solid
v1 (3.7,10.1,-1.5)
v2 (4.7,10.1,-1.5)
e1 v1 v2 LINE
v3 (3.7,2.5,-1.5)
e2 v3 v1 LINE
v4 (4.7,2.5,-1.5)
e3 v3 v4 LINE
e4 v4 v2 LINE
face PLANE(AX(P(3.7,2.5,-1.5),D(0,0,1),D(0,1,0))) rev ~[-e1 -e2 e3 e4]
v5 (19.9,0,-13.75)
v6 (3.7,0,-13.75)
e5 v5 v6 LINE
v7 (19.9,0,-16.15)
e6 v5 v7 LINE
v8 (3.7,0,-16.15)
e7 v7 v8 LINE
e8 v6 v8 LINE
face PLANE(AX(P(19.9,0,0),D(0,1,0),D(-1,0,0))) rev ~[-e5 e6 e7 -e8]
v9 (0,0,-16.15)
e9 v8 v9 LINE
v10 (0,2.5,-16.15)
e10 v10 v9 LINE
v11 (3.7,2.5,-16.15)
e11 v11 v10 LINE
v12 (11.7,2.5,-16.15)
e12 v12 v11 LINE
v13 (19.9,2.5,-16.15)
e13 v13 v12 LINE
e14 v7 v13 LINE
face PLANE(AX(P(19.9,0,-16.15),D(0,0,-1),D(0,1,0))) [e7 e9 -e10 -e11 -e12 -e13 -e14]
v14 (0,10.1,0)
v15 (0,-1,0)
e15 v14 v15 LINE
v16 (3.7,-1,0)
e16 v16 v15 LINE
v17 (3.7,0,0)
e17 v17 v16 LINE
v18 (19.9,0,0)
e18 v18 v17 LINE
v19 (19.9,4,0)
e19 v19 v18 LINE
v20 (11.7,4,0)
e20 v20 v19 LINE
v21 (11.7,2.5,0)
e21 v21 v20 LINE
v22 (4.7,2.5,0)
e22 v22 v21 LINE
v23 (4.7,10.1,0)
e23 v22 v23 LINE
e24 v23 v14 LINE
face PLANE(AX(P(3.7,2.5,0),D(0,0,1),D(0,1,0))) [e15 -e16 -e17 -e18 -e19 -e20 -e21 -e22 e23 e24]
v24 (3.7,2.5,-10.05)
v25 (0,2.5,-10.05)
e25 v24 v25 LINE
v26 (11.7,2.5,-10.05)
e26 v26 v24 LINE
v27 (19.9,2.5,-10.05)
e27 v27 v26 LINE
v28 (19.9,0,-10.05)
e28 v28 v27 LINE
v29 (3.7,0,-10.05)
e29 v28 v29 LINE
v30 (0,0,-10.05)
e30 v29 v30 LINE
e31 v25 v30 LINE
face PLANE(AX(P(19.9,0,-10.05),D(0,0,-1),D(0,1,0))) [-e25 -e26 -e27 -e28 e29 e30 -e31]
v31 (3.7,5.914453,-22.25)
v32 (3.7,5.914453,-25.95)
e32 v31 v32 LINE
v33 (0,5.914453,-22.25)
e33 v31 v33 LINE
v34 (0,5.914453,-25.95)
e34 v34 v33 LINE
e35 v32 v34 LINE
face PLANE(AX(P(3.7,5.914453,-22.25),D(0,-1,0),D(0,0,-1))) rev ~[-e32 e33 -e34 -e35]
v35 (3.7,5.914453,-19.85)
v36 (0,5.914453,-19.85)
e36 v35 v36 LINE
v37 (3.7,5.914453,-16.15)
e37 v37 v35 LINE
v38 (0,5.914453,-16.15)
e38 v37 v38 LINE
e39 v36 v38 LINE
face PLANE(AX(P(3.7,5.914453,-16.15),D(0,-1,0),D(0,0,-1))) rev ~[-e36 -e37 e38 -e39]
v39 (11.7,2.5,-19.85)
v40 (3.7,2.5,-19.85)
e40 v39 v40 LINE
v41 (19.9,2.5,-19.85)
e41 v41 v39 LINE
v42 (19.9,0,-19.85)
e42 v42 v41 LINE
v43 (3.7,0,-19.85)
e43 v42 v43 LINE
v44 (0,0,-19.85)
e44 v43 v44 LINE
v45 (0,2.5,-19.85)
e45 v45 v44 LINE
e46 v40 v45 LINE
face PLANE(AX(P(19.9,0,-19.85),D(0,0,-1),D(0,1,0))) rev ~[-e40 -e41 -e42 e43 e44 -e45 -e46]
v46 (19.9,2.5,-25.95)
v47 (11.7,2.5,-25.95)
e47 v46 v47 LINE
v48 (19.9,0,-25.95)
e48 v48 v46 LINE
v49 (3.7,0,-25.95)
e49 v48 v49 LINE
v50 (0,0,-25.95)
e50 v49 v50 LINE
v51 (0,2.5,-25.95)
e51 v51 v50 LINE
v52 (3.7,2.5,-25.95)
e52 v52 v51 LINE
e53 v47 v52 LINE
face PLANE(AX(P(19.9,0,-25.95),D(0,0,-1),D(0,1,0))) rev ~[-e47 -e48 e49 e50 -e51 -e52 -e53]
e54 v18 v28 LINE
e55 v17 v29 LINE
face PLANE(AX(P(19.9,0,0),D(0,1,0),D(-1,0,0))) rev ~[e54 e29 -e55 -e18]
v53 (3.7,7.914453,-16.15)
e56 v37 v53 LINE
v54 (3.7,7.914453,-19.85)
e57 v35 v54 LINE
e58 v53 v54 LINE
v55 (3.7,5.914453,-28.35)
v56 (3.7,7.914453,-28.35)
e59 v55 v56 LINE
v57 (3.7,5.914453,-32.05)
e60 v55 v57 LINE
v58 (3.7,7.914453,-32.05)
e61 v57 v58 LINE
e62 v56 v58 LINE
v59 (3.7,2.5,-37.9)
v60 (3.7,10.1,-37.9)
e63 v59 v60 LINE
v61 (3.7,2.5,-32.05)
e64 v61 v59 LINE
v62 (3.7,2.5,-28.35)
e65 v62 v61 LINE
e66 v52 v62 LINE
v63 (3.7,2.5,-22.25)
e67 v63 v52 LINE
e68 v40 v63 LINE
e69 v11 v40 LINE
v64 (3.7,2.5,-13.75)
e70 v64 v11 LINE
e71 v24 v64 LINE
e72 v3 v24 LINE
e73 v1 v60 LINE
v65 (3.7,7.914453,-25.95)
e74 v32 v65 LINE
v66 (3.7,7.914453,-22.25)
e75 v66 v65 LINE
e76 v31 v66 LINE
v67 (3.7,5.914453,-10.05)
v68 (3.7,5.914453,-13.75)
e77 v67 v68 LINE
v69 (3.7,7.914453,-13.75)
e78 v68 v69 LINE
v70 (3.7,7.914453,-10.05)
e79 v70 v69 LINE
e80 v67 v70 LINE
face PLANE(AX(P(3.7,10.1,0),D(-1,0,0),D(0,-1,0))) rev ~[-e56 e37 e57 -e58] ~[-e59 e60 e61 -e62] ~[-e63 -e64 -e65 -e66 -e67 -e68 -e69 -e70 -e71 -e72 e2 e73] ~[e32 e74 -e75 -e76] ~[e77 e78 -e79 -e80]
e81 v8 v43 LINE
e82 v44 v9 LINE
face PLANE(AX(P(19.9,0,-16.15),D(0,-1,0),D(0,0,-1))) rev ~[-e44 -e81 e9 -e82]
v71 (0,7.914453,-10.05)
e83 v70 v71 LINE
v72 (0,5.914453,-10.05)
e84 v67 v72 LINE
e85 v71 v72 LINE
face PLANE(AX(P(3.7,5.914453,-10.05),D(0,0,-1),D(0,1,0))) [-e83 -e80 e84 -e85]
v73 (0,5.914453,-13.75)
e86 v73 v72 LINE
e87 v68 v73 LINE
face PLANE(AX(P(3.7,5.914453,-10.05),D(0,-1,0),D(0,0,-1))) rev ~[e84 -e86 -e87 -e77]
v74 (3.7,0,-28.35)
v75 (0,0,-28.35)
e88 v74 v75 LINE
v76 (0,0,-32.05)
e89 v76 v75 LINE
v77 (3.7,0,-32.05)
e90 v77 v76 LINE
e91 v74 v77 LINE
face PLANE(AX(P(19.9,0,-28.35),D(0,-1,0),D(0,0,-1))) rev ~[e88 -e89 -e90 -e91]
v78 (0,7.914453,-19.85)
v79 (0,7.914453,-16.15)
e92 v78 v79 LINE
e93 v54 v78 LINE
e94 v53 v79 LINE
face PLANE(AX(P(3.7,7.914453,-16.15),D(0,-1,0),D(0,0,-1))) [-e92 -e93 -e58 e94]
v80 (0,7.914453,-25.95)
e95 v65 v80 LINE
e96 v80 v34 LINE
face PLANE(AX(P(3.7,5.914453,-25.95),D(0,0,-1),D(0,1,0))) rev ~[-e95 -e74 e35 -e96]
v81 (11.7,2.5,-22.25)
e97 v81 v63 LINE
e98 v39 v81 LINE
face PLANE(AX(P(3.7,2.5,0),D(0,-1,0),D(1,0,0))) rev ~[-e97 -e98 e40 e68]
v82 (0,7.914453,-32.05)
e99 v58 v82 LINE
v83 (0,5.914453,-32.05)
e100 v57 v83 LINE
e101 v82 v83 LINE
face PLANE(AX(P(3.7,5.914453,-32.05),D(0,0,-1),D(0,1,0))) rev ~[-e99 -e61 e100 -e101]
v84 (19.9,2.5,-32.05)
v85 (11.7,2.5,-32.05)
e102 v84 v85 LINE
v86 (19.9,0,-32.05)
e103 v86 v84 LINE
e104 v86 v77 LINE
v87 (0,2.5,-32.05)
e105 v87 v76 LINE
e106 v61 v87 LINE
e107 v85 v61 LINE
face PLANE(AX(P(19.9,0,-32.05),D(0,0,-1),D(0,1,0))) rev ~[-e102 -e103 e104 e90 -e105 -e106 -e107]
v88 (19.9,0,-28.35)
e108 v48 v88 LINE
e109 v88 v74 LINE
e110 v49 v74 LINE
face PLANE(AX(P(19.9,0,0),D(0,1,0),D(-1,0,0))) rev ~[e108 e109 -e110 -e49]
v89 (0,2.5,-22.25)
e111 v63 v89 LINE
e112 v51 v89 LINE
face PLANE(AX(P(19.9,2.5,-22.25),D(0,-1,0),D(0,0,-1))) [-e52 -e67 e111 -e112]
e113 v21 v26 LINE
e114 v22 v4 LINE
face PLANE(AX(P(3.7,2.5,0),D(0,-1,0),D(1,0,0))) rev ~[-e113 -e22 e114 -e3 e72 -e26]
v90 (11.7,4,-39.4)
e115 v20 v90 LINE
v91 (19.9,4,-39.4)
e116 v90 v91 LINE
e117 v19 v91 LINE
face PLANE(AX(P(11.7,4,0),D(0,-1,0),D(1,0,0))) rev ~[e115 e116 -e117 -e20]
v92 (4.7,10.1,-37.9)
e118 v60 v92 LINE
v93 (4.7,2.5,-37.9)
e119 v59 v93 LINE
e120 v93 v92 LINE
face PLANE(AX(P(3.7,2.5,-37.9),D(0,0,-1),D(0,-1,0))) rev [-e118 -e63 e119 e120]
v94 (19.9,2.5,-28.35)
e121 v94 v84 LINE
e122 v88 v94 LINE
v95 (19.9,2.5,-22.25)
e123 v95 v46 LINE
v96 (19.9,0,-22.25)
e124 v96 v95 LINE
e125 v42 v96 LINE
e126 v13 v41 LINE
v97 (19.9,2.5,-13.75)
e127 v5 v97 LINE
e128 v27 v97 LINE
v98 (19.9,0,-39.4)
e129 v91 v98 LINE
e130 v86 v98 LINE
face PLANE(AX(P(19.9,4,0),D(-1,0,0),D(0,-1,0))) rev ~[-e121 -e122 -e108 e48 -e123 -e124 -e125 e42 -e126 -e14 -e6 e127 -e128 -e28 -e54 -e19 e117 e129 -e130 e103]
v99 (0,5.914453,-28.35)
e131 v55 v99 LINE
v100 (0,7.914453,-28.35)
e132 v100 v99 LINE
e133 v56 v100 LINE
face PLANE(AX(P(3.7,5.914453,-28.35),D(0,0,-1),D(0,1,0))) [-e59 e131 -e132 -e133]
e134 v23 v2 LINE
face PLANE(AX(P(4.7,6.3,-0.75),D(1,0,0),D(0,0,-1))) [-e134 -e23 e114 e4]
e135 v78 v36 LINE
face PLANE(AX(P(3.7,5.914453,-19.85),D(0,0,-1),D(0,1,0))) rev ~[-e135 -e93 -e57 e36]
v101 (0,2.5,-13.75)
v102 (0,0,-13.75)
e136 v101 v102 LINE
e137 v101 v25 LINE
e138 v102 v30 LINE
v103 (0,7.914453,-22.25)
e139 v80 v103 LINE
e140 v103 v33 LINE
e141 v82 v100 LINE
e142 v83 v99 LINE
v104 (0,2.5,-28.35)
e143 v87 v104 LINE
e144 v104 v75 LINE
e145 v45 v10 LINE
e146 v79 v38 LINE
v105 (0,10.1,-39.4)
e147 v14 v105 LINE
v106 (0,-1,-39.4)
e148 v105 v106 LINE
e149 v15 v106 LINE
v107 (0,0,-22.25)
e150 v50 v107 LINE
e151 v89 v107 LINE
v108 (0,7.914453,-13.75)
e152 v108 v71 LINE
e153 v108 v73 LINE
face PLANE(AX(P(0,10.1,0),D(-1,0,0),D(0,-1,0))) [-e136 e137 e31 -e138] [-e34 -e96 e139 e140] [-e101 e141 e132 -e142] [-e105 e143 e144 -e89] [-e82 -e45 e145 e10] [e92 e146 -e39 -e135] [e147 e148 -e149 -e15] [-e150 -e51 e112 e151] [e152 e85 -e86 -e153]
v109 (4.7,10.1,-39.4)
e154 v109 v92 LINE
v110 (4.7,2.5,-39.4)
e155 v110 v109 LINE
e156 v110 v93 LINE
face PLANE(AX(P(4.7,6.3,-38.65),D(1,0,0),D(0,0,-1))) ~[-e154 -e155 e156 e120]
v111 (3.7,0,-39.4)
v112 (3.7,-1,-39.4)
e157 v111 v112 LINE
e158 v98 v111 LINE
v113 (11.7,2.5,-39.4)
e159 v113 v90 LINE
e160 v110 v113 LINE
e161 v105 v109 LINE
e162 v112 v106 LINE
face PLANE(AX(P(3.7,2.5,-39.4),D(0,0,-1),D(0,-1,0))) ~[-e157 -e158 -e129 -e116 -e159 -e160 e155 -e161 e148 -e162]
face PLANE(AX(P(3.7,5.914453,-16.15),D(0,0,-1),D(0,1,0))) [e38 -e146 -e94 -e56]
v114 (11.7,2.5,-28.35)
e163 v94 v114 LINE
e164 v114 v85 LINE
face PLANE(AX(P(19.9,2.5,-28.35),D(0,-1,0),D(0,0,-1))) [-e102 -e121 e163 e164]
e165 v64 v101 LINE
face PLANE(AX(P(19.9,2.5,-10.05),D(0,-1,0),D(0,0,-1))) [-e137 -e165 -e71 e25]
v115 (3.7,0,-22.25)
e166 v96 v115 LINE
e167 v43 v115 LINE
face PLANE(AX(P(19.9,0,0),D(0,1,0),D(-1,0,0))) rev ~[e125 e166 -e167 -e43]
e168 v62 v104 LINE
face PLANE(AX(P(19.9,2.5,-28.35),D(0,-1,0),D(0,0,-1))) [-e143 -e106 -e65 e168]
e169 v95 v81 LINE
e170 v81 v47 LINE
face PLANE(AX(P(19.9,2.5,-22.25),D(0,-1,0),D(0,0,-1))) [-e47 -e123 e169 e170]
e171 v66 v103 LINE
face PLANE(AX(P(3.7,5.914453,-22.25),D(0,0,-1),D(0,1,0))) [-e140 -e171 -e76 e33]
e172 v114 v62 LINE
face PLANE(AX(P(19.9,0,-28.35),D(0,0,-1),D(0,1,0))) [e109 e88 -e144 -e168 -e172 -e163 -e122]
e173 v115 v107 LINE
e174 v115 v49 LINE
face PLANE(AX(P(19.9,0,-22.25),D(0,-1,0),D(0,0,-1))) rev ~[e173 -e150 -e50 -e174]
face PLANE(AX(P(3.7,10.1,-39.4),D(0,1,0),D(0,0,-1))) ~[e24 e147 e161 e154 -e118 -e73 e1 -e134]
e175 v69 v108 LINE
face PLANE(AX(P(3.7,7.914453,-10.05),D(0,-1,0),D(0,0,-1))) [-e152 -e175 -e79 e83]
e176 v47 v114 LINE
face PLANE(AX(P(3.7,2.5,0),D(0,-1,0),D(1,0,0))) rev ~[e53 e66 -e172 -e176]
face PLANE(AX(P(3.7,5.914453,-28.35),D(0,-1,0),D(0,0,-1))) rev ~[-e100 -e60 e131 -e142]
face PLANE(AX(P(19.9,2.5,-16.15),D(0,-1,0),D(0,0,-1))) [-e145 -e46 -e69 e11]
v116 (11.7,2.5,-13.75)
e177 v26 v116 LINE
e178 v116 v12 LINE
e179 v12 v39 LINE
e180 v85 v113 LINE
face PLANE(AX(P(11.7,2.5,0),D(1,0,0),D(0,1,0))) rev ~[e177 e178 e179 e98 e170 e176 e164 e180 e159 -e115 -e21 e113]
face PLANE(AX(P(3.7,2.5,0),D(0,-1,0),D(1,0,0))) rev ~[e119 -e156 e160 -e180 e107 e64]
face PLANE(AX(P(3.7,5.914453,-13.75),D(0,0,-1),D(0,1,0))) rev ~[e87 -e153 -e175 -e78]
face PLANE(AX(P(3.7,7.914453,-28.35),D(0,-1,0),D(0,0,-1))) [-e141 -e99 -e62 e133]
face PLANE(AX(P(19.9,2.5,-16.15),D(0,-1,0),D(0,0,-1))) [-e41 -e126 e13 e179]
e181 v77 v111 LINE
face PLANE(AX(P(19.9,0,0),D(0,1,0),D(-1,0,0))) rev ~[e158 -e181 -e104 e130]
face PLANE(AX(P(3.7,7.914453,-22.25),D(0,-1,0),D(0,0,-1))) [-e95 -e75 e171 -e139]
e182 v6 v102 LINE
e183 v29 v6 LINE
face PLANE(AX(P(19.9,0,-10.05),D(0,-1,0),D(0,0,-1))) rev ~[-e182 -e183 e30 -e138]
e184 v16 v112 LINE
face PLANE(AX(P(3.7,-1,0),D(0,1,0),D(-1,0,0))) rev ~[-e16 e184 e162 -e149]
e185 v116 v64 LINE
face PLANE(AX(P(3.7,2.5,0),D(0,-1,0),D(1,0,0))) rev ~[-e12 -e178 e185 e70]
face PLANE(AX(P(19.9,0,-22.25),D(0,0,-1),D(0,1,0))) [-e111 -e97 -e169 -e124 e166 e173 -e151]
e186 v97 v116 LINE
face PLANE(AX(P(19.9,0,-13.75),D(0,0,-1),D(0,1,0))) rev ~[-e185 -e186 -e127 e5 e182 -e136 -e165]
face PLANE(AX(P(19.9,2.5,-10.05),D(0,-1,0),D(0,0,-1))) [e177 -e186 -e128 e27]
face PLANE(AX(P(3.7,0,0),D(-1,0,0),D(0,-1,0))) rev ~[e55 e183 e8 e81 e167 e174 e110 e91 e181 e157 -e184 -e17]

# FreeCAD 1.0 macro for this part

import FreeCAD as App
import Part
import Sketcher

V = App.Vector


def add_polygon(sketch, points):
    """Adds a closed chain of lines whose ends are joined by coincident constraints."""
    first, n = sketch.GeometryCount, len(points)
    for a, b in zip(points, points[1:] + points[:1]):
        sketch.addGeometry(Part.LineSegment(App.Vector(*a, 0), App.Vector(*b, 0)), False)
    for i in range(n):
        sketch.addConstraint(Sketcher.Constraint("Coincident", first + i, 2, first + (i + 1) % n, 1))

doc = App.newDocument("Part")
body = doc.addObject("PartDesign::Body", "Body")

sketch1 = body.newObject("Sketcher::SketchObject", "Sketch")
sketch1.AttachmentSupport = (doc.getObject("XY_Plane"), [""])
sketch1.MapMode = "FlatFace"
add_polygon(sketch1, [(0, 10.1), (0, -1), (3.7, -1), (3.7, 0), (19.9, 0), (19.9, 4), (11.7, 4), (11.7, 2.5), (3.7, 2.5), (3.7, 10.1)])
sketch1.addConstraint([
    Sketcher.Constraint("Vertical", 0),
    Sketcher.Constraint("Horizontal", 1),
    Sketcher.Constraint("Vertical", 2),
    Sketcher.Constraint("Horizontal", 3),
    Sketcher.Constraint("Vertical", 4),
    Sketcher.Constraint("Horizontal", 5),
    Sketcher.Constraint("Vertical", 6),
    Sketcher.Constraint("Horizontal", 7),
    Sketcher.Constraint("Vertical", 8),
    Sketcher.Constraint("Horizontal", 9),
    Sketcher.Constraint("PointOnObject", 0, 2, -2),
    Sketcher.Constraint("PointOnObject", 2, 2, -1),
    Sketcher.Constraint("Vertical", 2, 2, 7, 2),
    Sketcher.Constraint("DistanceX", 7, 2, 7, 1, 8.0),
    Sketcher.Constraint("DistanceY", 2, 1, 2, 2, 1.0),
    Sketcher.Constraint("DistanceY", 4, 1, 4, 2, 4.0),
    Sketcher.Constraint("DistanceX", 1, 1, 1, 2, 3.7),
    Sketcher.Constraint("DistanceX", 3, 1, 3, 2, 16.2),
    Sketcher.Constraint("DistanceY", 0, 2, 0, 1, 11.1),
    Sketcher.Constraint("DistanceY", 6, 2, 6, 1, 1.5),
])
pad1 = body.newObject("PartDesign::Pad", "Pad")
pad1.Profile = sketch1
pad1.Length = 39.4
pad1.Reversed = True

sketch2 = body.newObject("Sketcher::SketchObject", "Sketch001")
sketch2.AttachmentSupport = (doc.getObject("YZ_Plane"), [""])
sketch2.MapMode = "FlatFace"
sketch2.AttachmentOffset = App.Placement(V(0, 0, 19.9), App.Rotation())
add_polygon(sketch2, [(2.5, -10.1), (0, -10.1), (0, -13.8), (2.5, -13.8)])
sketch2.addConstraint([
    Sketcher.Constraint("Horizontal", 0),
    Sketcher.Constraint("Vertical", 1),
    Sketcher.Constraint("Horizontal", 2),
    Sketcher.Constraint("Vertical", 3),
    Sketcher.Constraint("PointOnObject", 0, 2, -2),
    Sketcher.Constraint("DistanceX", 0, 2, 0, 1, 2.5),
    Sketcher.Constraint("DistanceY", 1, 2, 1, 1, 3.7),
    Sketcher.Constraint("DistanceY", 0, 2, -1, 1, 10.05),
])
pocket1 = body.newObject("PartDesign::Pocket", "Pocket")
pocket1.Profile = sketch2
pocket1.Type = "ThroughAll"

sketch3 = body.newObject("Sketcher::SketchObject", "Sketch002")
sketch3.AttachmentSupport = (doc.getObject("YZ_Plane"), [""])
sketch3.MapMode = "FlatFace"
sketch3.AttachmentOffset = App.Placement(V(0, 0, 3.7), App.Rotation())
add_polygon(sketch3, [(7.9, -10.1), (5.9, -10.1), (5.9, -13.8), (7.9, -13.8)])
sketch3.addConstraint([
    Sketcher.Constraint("Horizontal", 0),
    Sketcher.Constraint("Vertical", 1),
    Sketcher.Constraint("Horizontal", 2),
    Sketcher.Constraint("Vertical", 3),
    Sketcher.Constraint("DistanceX", 0, 2, 0, 1, 2.0),
    Sketcher.Constraint("DistanceY", 1, 2, 1, 1, 3.7),
    Sketcher.Constraint("DistanceY", 0, 2, -1, 1, 10.05),
    Sketcher.Constraint("DistanceX", -1, 1, 0, 2, 5.914453),
])
pocket2 = body.newObject("PartDesign::Pocket", "Pocket001")
pocket2.Profile = sketch3
pocket2.Length = 10
doc.recompute()

linearpattern = body.newObject("PartDesign::LinearPattern", "LinearPattern")
linearpattern.Originals = [pocket1, pocket2]
linearpattern.Direction = (doc.getObject("Z_Axis"), [""])
linearpattern.Mode = "offset"
linearpattern.Offset = 6.1
linearpattern.Occurrences = 4
linearpattern.Reversed = True
body.Tip = linearpattern

sketch4 = body.newObject("Sketcher::SketchObject", "Sketch003")
sketch4.AttachmentSupport = (doc.getObject("YZ_Plane"), [""])
sketch4.MapMode = "FlatFace"
sketch4.AttachmentOffset = App.Placement(V(0, 0, 3.7), App.Rotation())
add_polygon(sketch4, [(10.1, 0), (2.5, 0), (2.5, -1.5), (10.1, -1.5)])
sketch4.addConstraint([
    Sketcher.Constraint("Horizontal", 0),
    Sketcher.Constraint("Vertical", 1),
    Sketcher.Constraint("Horizontal", 2),
    Sketcher.Constraint("Vertical", 3),
    Sketcher.Constraint("PointOnObject", 0, 2, -1),
    Sketcher.Constraint("DistanceX", 0, 2, 0, 1, 7.6),
    Sketcher.Constraint("DistanceY", 1, 2, 1, 1, 1.5),
    Sketcher.Constraint("DistanceX", -1, 1, 0, 2, 2.5),
])
pad2 = body.newObject("PartDesign::Pad", "Pad001")
pad2.Profile = sketch4
pad2.Length = 1
doc.recompute()

datumplane = body.newObject("PartDesign::Plane", "DatumPlane")
datumplane.AttachmentSupport = (doc.getObject("XY_Plane"), [""])
datumplane.MapMode = "FlatFace"
datumplane.AttachmentOffset = App.Placement(V(0, 0, -19.7), App.Rotation())
mirrored = body.newObject("PartDesign::Mirrored", "Mirrored")
mirrored.Originals = [pad2]
mirrored.MirrorPlane = (datumplane, [""])
body.Tip = mirrored

doc.recompute()
